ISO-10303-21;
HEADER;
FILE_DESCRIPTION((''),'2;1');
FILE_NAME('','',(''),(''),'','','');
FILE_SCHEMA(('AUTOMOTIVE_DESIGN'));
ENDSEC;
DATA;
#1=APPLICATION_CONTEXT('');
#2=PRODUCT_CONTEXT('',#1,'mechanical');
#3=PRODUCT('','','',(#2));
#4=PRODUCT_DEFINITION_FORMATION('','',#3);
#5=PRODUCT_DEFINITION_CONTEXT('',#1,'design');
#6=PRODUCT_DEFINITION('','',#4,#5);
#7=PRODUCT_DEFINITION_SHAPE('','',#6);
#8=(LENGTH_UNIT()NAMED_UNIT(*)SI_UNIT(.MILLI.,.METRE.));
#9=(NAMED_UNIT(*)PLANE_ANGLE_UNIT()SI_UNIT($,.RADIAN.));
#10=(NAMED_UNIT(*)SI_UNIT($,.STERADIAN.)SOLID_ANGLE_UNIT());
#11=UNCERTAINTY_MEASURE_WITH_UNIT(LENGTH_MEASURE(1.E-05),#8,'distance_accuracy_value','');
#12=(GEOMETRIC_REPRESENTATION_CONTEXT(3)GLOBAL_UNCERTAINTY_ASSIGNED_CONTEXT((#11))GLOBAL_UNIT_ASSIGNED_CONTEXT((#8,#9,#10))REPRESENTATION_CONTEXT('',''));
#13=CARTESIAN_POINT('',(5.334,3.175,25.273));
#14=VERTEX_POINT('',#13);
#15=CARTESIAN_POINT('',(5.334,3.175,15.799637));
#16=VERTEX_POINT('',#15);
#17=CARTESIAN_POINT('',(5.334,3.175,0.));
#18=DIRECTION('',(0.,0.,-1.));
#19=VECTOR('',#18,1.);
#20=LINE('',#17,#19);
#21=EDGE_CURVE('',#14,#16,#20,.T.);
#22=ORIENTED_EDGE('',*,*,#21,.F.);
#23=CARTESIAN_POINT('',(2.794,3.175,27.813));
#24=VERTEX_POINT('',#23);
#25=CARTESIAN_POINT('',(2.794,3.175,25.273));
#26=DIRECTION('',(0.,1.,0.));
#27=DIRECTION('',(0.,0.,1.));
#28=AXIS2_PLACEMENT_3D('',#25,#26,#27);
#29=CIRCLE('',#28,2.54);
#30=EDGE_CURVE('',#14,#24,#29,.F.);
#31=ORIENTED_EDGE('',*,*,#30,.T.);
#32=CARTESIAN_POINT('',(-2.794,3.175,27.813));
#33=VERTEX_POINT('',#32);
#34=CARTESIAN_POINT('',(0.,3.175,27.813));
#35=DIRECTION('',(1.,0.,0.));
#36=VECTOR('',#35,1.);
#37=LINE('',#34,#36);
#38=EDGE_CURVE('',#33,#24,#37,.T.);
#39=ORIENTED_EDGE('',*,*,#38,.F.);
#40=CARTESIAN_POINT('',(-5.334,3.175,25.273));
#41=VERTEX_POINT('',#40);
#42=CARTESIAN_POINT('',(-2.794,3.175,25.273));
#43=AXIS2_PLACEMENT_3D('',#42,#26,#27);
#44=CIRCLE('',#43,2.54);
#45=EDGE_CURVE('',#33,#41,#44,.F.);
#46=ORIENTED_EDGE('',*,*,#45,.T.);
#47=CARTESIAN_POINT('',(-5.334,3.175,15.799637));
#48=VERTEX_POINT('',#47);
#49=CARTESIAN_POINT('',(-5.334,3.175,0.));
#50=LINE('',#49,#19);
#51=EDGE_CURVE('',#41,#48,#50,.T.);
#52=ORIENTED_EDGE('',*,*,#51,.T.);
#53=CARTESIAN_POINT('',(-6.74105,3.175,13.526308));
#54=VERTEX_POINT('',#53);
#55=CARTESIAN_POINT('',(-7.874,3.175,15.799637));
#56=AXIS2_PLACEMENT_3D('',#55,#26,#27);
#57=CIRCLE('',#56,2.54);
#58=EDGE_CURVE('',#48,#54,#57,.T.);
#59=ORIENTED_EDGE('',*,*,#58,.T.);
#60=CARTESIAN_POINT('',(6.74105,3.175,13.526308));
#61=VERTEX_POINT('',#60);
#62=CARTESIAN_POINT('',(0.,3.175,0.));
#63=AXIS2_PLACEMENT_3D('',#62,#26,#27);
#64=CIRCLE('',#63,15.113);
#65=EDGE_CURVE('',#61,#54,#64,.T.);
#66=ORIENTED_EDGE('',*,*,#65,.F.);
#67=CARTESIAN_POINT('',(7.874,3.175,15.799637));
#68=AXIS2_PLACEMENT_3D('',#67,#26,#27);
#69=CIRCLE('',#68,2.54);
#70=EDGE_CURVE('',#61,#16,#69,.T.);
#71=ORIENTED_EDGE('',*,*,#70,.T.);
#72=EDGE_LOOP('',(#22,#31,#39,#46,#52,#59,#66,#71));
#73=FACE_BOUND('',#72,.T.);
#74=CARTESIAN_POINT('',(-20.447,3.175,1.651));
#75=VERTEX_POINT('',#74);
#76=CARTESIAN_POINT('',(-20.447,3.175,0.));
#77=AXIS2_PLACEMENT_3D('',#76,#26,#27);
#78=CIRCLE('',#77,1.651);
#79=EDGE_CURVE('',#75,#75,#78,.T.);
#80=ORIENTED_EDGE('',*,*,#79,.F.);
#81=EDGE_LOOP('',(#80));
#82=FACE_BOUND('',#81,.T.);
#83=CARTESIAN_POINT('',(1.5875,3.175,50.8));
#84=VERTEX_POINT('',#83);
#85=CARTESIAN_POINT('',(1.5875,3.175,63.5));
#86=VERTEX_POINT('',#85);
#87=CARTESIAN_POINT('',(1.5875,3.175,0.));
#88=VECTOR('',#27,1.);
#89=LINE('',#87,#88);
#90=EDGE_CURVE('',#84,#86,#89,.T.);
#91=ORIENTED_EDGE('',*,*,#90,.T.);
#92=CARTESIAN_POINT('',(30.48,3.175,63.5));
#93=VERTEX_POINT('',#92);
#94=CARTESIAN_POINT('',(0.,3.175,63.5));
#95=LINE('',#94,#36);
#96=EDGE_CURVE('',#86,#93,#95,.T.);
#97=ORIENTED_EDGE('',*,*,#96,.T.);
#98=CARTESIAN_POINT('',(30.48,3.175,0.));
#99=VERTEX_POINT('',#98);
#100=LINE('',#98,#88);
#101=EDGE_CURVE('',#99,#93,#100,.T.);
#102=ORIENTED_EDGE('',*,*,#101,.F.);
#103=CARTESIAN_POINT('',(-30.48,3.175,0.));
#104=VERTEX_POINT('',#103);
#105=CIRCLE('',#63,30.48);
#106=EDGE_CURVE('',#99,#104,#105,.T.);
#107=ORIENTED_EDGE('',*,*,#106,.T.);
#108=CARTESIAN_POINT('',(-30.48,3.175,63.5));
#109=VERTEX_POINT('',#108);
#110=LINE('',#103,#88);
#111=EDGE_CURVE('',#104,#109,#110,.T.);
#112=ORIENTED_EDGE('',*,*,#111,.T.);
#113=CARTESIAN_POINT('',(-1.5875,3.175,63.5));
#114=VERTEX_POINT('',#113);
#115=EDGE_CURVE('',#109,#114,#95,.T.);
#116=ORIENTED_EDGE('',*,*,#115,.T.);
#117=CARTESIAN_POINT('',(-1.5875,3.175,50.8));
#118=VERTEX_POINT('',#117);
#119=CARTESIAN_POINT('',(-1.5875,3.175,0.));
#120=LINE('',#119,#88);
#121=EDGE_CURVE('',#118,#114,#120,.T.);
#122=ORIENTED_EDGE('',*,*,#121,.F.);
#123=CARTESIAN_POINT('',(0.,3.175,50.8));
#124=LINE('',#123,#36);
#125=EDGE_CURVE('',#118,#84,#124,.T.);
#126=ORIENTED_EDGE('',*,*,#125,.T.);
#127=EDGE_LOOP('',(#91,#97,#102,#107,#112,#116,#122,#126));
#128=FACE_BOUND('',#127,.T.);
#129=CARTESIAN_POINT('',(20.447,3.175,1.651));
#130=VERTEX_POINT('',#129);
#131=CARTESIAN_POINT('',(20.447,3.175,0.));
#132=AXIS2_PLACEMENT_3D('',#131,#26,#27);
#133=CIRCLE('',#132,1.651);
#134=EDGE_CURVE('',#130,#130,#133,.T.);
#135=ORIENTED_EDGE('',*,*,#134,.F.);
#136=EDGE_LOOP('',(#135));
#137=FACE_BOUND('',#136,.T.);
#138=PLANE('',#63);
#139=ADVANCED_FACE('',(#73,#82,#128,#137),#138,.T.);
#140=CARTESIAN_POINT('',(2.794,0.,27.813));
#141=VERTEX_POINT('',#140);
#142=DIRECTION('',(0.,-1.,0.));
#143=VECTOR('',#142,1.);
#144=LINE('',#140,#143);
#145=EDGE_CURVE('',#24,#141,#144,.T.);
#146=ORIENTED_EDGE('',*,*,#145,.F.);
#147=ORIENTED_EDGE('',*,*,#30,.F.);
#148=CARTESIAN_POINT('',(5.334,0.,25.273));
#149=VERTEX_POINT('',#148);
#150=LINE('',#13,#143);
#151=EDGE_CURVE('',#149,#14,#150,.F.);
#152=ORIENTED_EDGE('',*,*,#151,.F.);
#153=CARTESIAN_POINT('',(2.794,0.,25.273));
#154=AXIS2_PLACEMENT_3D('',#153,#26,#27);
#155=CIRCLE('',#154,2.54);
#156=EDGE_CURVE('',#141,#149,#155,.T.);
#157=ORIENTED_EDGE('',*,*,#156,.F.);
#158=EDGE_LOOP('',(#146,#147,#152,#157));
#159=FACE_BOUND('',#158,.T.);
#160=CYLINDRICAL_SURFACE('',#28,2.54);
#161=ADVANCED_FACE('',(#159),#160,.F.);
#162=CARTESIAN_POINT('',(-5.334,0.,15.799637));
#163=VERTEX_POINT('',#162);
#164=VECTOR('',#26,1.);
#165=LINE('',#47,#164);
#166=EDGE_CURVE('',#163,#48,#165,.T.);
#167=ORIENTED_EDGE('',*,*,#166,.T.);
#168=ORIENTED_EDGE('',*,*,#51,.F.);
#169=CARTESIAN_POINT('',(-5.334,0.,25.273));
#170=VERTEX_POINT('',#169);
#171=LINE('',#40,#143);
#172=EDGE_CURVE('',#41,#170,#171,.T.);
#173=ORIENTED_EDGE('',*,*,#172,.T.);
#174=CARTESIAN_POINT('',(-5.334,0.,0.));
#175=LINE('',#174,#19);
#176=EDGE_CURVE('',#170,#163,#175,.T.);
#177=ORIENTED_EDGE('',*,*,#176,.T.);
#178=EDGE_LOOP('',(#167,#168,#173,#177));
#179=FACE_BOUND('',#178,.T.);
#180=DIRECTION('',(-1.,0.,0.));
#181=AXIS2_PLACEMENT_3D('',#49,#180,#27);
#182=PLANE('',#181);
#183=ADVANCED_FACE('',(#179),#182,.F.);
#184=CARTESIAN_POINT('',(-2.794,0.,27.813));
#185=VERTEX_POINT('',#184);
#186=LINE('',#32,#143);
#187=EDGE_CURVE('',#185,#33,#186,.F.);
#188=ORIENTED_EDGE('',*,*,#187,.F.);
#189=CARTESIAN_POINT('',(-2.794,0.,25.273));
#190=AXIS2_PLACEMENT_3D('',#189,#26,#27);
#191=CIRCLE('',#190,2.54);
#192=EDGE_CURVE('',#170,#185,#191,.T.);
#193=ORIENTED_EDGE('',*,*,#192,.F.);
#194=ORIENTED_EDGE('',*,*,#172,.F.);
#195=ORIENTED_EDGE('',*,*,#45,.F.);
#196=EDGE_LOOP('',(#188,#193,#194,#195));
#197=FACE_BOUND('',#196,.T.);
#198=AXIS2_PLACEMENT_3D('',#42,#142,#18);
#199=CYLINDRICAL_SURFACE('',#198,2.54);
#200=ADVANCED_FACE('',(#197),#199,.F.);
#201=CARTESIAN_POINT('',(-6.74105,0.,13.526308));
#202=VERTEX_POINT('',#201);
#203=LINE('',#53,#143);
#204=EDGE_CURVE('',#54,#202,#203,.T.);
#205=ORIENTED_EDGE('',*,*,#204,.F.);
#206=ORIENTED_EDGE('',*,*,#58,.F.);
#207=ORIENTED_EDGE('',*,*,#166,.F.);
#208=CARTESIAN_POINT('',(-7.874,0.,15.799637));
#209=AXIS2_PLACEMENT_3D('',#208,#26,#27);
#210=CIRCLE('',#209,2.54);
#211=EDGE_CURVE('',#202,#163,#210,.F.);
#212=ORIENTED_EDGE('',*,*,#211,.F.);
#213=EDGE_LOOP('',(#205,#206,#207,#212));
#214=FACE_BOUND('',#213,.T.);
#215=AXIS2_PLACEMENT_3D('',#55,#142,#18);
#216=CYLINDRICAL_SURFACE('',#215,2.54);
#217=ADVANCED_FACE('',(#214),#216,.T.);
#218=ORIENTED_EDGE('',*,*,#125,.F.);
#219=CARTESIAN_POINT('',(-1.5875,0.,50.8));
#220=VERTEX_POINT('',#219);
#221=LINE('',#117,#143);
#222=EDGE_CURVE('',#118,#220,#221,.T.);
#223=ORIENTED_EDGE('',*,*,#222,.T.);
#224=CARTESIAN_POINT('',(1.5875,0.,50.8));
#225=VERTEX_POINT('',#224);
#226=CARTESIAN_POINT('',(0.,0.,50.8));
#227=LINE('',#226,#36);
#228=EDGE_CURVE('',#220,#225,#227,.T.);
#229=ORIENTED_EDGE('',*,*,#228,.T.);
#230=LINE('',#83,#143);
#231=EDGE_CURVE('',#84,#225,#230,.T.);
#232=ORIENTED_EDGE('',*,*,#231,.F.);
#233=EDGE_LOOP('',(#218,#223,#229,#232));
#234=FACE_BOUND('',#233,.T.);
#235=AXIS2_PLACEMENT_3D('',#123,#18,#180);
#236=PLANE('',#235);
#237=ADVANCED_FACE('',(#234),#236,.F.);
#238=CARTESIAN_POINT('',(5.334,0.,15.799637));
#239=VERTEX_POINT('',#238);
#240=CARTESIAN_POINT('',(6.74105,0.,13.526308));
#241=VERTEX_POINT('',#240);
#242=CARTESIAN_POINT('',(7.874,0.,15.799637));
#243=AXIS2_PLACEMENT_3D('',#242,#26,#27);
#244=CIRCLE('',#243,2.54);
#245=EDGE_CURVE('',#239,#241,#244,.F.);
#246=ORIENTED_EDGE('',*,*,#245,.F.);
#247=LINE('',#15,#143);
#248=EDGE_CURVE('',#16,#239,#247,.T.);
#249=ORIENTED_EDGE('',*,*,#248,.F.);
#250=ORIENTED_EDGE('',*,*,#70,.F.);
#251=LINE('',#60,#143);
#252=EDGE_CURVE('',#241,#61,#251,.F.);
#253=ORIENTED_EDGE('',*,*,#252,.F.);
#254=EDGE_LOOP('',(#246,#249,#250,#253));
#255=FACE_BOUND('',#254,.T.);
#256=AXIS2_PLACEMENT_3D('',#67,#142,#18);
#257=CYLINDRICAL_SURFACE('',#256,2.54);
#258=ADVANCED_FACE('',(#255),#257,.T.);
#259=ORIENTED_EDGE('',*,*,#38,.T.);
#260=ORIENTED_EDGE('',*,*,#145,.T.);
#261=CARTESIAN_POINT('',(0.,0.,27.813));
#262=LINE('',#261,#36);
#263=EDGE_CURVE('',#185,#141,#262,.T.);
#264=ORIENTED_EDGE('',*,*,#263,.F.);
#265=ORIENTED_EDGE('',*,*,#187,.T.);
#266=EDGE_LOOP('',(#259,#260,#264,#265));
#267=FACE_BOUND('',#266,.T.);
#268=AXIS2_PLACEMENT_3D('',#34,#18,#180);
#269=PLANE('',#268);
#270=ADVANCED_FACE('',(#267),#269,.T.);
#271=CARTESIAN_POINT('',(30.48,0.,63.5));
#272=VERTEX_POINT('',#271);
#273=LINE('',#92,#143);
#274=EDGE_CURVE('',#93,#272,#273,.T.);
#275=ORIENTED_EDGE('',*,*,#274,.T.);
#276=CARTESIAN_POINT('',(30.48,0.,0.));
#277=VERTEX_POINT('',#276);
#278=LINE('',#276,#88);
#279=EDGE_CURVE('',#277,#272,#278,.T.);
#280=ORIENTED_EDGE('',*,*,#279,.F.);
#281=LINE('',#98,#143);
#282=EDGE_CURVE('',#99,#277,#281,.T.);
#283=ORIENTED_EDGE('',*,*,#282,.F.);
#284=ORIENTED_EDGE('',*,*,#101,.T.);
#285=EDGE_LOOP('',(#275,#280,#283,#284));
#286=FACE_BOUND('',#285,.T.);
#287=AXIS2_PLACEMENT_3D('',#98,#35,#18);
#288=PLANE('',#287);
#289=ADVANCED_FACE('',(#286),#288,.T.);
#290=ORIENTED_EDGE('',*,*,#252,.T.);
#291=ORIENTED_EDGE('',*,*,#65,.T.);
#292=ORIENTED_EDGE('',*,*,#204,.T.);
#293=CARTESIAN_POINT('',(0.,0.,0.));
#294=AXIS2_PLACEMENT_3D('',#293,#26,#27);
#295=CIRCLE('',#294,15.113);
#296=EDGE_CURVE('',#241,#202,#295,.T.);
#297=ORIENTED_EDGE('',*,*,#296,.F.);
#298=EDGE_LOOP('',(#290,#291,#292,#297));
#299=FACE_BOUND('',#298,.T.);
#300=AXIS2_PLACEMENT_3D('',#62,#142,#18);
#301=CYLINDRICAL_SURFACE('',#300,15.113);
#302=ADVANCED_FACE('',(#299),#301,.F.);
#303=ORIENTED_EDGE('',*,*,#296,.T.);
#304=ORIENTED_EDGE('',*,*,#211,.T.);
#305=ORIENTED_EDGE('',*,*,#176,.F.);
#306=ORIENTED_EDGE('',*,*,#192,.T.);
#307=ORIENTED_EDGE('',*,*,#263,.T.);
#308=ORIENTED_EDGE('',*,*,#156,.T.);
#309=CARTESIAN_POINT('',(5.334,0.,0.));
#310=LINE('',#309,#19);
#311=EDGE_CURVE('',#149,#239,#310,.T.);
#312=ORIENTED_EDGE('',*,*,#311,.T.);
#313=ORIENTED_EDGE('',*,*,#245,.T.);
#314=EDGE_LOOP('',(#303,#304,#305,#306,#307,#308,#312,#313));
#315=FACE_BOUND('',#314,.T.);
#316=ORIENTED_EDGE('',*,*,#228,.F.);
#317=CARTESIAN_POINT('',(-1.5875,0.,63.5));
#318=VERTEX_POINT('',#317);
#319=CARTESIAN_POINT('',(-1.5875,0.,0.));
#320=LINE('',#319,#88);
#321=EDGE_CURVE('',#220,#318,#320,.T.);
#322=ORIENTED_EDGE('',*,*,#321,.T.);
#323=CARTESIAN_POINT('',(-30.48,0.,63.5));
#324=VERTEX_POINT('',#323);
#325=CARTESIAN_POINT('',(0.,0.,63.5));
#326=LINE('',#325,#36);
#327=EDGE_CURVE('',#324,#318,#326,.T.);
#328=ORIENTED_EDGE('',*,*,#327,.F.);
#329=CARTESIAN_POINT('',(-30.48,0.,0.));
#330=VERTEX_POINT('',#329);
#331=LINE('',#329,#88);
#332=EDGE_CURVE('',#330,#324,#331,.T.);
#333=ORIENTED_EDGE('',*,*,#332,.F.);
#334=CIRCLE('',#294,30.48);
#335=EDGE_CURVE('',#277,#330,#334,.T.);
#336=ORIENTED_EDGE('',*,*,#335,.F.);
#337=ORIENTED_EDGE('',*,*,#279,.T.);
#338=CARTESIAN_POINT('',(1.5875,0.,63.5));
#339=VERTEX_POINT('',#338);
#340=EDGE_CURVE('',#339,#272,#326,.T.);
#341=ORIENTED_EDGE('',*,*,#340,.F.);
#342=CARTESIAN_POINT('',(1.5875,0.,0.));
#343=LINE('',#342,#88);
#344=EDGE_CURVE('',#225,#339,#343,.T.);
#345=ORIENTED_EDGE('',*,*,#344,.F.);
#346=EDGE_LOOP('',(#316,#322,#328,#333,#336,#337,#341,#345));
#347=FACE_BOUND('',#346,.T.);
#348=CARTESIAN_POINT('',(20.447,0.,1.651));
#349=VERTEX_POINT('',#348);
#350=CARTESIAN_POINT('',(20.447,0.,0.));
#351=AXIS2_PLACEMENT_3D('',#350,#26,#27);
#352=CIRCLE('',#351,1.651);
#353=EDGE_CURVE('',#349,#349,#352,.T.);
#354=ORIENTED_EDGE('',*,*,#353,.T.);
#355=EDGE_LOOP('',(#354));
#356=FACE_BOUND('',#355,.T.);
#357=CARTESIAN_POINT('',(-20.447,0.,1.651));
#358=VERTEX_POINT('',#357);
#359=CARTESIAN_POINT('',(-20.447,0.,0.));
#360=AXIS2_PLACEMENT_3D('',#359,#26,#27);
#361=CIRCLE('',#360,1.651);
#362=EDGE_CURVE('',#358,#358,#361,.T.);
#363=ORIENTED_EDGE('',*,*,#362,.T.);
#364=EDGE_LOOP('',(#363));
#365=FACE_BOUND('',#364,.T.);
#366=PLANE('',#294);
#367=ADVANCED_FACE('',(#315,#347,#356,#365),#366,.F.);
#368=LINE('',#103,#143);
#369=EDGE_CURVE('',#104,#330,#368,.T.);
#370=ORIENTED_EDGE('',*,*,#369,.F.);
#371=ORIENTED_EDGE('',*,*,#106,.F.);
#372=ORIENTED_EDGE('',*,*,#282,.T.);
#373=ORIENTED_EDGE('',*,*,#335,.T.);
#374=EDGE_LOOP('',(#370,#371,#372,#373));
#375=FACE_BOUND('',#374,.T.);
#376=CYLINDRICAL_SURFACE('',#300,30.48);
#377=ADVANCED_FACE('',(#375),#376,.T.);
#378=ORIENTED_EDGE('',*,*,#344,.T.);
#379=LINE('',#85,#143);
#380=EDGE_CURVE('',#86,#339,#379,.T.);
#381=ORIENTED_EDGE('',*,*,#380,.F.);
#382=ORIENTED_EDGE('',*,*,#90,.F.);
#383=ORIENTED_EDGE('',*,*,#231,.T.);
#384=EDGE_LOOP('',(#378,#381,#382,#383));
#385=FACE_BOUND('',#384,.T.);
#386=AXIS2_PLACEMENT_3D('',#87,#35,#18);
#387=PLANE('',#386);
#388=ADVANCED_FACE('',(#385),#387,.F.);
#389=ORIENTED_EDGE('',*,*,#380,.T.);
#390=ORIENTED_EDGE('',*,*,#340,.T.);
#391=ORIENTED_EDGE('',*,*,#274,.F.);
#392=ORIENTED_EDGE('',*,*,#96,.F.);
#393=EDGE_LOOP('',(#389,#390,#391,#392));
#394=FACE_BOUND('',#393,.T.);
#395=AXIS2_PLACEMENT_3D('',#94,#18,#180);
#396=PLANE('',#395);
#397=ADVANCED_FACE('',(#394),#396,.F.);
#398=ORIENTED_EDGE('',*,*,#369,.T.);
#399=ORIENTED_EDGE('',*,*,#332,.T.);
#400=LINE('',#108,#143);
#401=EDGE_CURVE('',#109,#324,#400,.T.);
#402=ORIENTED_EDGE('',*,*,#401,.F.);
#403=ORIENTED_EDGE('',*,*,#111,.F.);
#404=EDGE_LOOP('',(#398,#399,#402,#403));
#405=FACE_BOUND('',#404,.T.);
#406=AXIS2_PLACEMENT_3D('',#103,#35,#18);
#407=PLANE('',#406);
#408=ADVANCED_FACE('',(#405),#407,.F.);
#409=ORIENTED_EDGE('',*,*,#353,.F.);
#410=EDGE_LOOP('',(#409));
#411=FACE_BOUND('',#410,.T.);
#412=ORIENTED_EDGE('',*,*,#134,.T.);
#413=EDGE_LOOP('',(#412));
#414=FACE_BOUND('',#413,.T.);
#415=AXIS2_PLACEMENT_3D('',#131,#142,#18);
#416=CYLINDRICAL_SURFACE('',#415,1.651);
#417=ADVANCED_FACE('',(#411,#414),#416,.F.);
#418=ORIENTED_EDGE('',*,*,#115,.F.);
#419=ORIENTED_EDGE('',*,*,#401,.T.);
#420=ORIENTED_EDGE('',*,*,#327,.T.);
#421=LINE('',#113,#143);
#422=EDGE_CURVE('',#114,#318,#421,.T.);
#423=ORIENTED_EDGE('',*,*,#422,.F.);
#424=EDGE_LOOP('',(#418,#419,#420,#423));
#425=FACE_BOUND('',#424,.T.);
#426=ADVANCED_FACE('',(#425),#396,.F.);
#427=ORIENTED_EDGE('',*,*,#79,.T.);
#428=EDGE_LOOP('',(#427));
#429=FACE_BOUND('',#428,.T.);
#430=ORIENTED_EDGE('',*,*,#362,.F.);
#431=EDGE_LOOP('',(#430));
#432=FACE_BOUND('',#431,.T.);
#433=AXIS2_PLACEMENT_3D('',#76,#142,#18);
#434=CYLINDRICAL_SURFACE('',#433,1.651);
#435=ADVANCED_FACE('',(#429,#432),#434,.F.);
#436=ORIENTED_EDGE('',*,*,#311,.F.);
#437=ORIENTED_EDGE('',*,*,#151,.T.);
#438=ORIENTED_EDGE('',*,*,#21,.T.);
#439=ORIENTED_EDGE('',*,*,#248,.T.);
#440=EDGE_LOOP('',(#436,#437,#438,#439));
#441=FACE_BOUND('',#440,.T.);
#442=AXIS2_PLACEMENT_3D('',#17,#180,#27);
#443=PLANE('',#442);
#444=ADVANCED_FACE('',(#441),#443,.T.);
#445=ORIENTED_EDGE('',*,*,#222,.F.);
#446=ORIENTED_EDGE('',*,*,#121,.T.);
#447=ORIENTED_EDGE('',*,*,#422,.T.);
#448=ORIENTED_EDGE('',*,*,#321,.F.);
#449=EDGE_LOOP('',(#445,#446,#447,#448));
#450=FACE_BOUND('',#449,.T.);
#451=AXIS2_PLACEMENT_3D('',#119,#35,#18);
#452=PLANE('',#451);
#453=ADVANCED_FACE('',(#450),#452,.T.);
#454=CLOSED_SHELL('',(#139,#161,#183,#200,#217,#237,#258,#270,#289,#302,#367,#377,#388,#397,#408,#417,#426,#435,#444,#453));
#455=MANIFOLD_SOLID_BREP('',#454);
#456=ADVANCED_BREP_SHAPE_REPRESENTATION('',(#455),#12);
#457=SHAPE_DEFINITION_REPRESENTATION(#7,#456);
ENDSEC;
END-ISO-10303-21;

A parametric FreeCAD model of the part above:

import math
import FreeCAD as App
import Part
import Sketcher

V = App.Vector
Q = App.Units.Quantity


def edges_at(feature, points):
    """Names of the edges that pass closest to the given points."""
    edges = feature.Shape.Edges
    near = lambda p: min(range(len(edges)), key=lambda i: edges[i].distToShape(Part.Vertex(*p))[0])
    return sorted({f"Edge{near(p) + 1}" for p in points})

doc = App.newDocument("Part")
params = doc.addObject("Spreadsheet::Sheet", "Params")
for row, (alias, value) in enumerate([
    ("sketch1_radius", "1.2 in"),
    ("sketch1_diameter", "0.13 in"),
    ("sketch1_height", "2.5 in"),
    ("sketch1_height2", "0.5 in"),
    ("sketch1_radius2", "0.595 in"),
    ("pad1_length", "0.125 in"),
    ("fillet_radius", "0.1 in"),
], start=1):
    params.set(f"A{row}", alias)
    params.set(f"B{row}", "=" + value)
    params.setAlias(f"B{row}", alias)

body = doc.addObject("PartDesign::Body", "Body")

# Sketch on XZ plane
sketch1 = body.newObject("Sketcher::SketchObject", "Sketch")
sketch1.AttachmentSupport = (doc.getObject("XZ_Plane"), [""])
sketch1.MapMode = "FlatFace"
sketch1.addGeometry([
    Part.LineSegment(V(30.48, 63.5, 0), V(30.48, 0, 0)),  # 0
    Part.ArcOfCircle(Part.Circle(V(0, 0, 0), V(0, 0, 1), 30.48), math.radians(180), math.radians(360)),  # 1
    Part.LineSegment(V(-30.48, 0, 0), V(-30.48, 63.5, 0)),  # 2
    Part.LineSegment(V(-30.48, 63.5, 0), V(-1.5875, 63.5, 0)),  # 3
    Part.LineSegment(V(-1.5875, 63.5, 0), V(-1.5875, 50.8, 0)),  # 4
    Part.LineSegment(V(-1.5875, 50.8, 0), V(1.5875, 50.8, 0)),  # 5
    Part.LineSegment(V(1.5875, 50.8, 0), V(1.5875, 63.5, 0)),  # 6
    Part.LineSegment(V(1.5875, 63.5, 0), V(30.48, 63.5, 0)),  # 7
    Part.Circle(V(-20.447, 0, 0), V(0, 0, 1), 1.651),  # 8
    Part.LineSegment(V(5.334, 14.140411, 0), V(5.334, 27.813, 0)),  # 9
    Part.LineSegment(V(5.334, 27.813, 0), V(-5.334, 27.813, 0)),  # 10
    Part.LineSegment(V(-5.334, 27.813, 0), V(-5.334, 14.140411, 0)),  # 11
    Part.ArcOfCircle(Part.Circle(V(0, 0, 0), V(0, 0, 1), 15.113), math.radians(110.667316), math.radians(360)),  # 12
    Part.ArcOfCircle(Part.Circle(V(0, 0, 0), V(0, 0, 1), 15.113), math.radians(0), math.radians(69.332684)),  # 13
    Part.Circle(V(20.447, 0, 0), V(0, 0, 1), 1.651),  # 14
], False)
sketch1.addConstraint([
    Sketcher.Constraint("Tangent", 0, 2, 1, 2),
    Sketcher.Constraint("Tangent", 1, 1, 2, 1),
    Sketcher.Constraint("Coincident", 2, 2, 3, 1),
    Sketcher.Constraint("Coincident", 3, 2, 4, 1),
    Sketcher.Constraint("Coincident", 4, 2, 5, 1),
    Sketcher.Constraint("Coincident", 5, 2, 6, 1),
    Sketcher.Constraint("Coincident", 6, 2, 7, 1),
    Sketcher.Constraint("Coincident", 7, 2, 0, 1),
    Sketcher.Constraint("Coincident", 9, 2, 10, 1),
    Sketcher.Constraint("Coincident", 10, 2, 11, 1),
    Sketcher.Constraint("Coincident", 11, 2, 12, 1),
    Sketcher.Constraint("Tangent", 12, 2, 13, 1),
    Sketcher.Constraint("Coincident", 13, 2, 9, 1),
    Sketcher.Constraint("Vertical", 0),
    Sketcher.Constraint("Vertical", 2),
    Sketcher.Constraint("Horizontal", 3),
    Sketcher.Constraint("Vertical", 4),
    Sketcher.Constraint("Horizontal", 5),
    Sketcher.Constraint("Vertical", 6),
    Sketcher.Constraint("Horizontal", 7),
    Sketcher.Constraint("Vertical", 9),
    Sketcher.Constraint("Horizontal", 10),
    Sketcher.Constraint("Vertical", 11),
    Sketcher.Constraint("Coincident", 1, 3, -1, 1),
    Sketcher.Constraint("Coincident", 12, 3, -1, 1),
    Sketcher.Constraint("Equal", 12, 13),
    Sketcher.Constraint("Equal", 8, 14),
    Sketcher.Constraint("Symmetric", 8, 3, 14, 3, -1, 1),
    Sketcher.Constraint("Symmetric", 3, 2, 6, 2, -2),
    Sketcher.Constraint("PointOnObject", 8, 3, -1),
    Sketcher.Constraint("PointOnObject", 12, 2, -1),
    Sketcher.Constraint("Horizontal", 11, 2, 13, 2),
    Sketcher.Constraint("Radius", 1, Q("1.2 in")),
    Sketcher.Constraint("Diameter", 8, Q("0.13 in")),
    Sketcher.Constraint("DistanceY", 0, 2, 0, 1, Q("2.5 in")),
    Sketcher.Constraint("DistanceY", 4, 2, 4, 1, Q("0.5 in")),
    Sketcher.Constraint("Radius", 12, Q("0.595 in")),
    Sketcher.Constraint("DistanceX", 10, 2, 10, 1, Q("0.42 in")),
    Sketcher.Constraint("DistanceX", 5, 1, 5, 2, Q("0.125 in")),
    Sketcher.Constraint("DistanceX", 8, 3, 14, 3, Q("1.61 in")),
    Sketcher.Constraint("DistanceY", -1, 1, 9, 2, Q("1.095 in")),
])
sketch1.setExpression("Constraints[32]", "Params.sketch1_radius")
sketch1.setExpression("Constraints[33]", "Params.sketch1_diameter")
sketch1.setExpression("Constraints[34]", "Params.sketch1_height")
sketch1.setExpression("Constraints[35]", "Params.sketch1_height2")
sketch1.setExpression("Constraints[36]", "Params.sketch1_radius2")
pad1 = body.newObject("PartDesign::Pad", "Pad")
pad1.Profile = sketch1
pad1.setExpression("Length", "Params.pad1_length")
pad1.Reversed = True
doc.recompute()

fillet = body.newObject("PartDesign::Fillet", "Fillet")
fillet.Base = (pad1, edges_at(pad1, [
    (-5.334, 1.587, 14.14),
    (-5.334, 1.587, 27.813),
    (5.334, 1.587, 27.813),
    (5.334, 1.587, 14.14),
]))
fillet.setExpression("Radius", "Params.fillet_radius")

doc.recompute()
